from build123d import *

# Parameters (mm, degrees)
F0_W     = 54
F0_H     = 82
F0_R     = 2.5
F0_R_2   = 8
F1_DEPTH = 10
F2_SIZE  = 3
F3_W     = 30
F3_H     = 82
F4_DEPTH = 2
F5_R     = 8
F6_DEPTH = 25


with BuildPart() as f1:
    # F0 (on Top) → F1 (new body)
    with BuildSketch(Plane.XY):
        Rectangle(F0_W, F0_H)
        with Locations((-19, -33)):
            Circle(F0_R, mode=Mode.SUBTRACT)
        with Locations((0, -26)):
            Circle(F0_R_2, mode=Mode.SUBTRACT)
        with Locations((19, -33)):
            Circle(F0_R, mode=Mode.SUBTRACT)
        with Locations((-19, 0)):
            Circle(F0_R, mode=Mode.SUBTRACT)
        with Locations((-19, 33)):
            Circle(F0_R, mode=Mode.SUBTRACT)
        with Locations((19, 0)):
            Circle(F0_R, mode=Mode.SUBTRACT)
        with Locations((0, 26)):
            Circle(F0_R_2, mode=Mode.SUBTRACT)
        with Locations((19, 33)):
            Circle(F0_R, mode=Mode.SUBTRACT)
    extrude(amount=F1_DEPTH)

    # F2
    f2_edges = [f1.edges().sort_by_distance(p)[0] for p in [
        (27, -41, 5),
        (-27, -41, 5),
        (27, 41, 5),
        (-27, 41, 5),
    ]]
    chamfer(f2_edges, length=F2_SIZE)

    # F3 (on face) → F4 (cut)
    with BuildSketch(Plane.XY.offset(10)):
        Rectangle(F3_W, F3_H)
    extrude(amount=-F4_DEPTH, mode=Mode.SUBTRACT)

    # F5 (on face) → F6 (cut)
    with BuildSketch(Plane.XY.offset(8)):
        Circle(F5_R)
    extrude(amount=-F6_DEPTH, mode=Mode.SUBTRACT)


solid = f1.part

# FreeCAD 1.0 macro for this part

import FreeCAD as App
import Part
import Sketcher
from FreeCAD import Vector
Q = App.Units.Quantity


def edges_at(feature, points):
    """Names of the edges that pass closest to the given points."""
    edges = feature.Shape.Edges
    near = lambda p: min(range(len(edges)), key=lambda i: edges[i].distToShape(Part.Vertex(*p))[0])
    return sorted({f"Edge{near(p) + 1}" for p in points})

doc = App.newDocument("Part")
body = doc.addObject("PartDesign::Body", "Body")

sketch1 = body.newObject("Sketcher::SketchObject", "Sketch")
sketch1.AttachmentSupport = (doc.getObject("XY_Plane"), [""])
sketch1.MapMode = "FlatFace"
sketch1.addGeometry([
    Part.LineSegment(Vector(-27, 41, 0), Vector(-27, -41, 0)),
    Part.LineSegment(Vector(-27, -41, 0), Vector(27, -41, 0)),
    Part.LineSegment(Vector(27, -41, 0), Vector(27, 41, 0)),
    Part.LineSegment(Vector(27, 41, 0), Vector(-27, 41, 0)),
    Part.Circle(Vector(-19, -33, 0), Vector(0, 0, 1), 2.5),
    Part.Circle(Vector(0, -26, 0), Vector(0, 0, 1), 8),
    Part.Circle(Vector(19, -33, 0), Vector(0, 0, 1), 2.5),
    Part.Circle(Vector(-19, 0, 0), Vector(0, 0, 1), 2.5),
    Part.Circle(Vector(-19, 33, 0), Vector(0, 0, 1), 2.5),
    Part.Circle(Vector(19, 0, 0), Vector(0, 0, 1), 2.5),
    Part.Circle(Vector(0, 26, 0), Vector(0, 0, 1), 8),
    Part.Circle(Vector(19, 33, 0), Vector(0, 0, 1), 2.5),
], False)
sketch1.addConstraint([
    Sketcher.Constraint("Coincident", 0, 2, 1, 1),
    Sketcher.Constraint("Coincident", 1, 2, 2, 1),
    Sketcher.Constraint("Coincident", 2, 2, 3, 1),
    Sketcher.Constraint("Coincident", 3, 2, 0, 1),
    Sketcher.Constraint("Vertical", 0),
    Sketcher.Constraint("Horizontal", 1),
    Sketcher.Constraint("Vertical", 2),
    Sketcher.Constraint("Horizontal", 3),
    Sketcher.Constraint("Equal", 4, 6),
    Sketcher.Constraint("Equal", 6, 7),
    Sketcher.Constraint("Equal", 7, 8),
    Sketcher.Constraint("Equal", 8, 9),
    Sketcher.Constraint("Equal", 5, 10),
    Sketcher.Constraint("Equal", 9, 11),
    Sketcher.Constraint("Symmetric", 6, 3, 8, 3, -1, 1),
    Sketcher.Constraint("Symmetric", 7, 3, 9, 3, -1, 1),
    Sketcher.Constraint("Symmetric", 5, 3, 10, 3, -1, 1),
    Sketcher.Constraint("Symmetric", 4, 3, 11, 3, -1, 1),
    Sketcher.Constraint("Symmetric", 0, 2, 2, 2, -1, 1),
    Sketcher.Constraint("Symmetric", 4, 3, 6, 3, -2),
    Sketcher.Constraint("PointOnObject", 5, 3, -2),
    Sketcher.Constraint("PointOnObject", 7, 3, -1),
    Sketcher.Constraint("Vertical", 4, 3, 7, 3),
    Sketcher.Constraint("Diameter", 4, Q("5 mm")),
    Sketcher.Constraint("Diameter", 5, Q("16 mm")),
    Sketcher.Constraint("DistanceX", 1, 1, 1, 2, Q("54 mm")),
    Sketcher.Constraint("DistanceY", 0, 2, 0, 1, Q("82 mm")),
    Sketcher.Constraint("DistanceX", 4, 3, -1, 1, Q("19 mm")),
    Sketcher.Constraint("DistanceY", 4, 3, -1, 1, Q("33 mm")),
    Sketcher.Constraint("DistanceY", 5, 3, -1, 1, Q("26 mm")),
])
pad1 = body.newObject("PartDesign::Pad", "Pad")
pad1.Profile = sketch1
pad1.Length = 10
doc.recompute()

chamfer = body.newObject("PartDesign::Chamfer", "Chamfer")
chamfer.Base = (pad1, edges_at(pad1, [
    (27, -41, 5),
    (-27, -41, 5),
    (27, 41, 5),
    (-27, 41, 5),
]))
chamfer.Size = 3

sketch2 = body.newObject("Sketcher::SketchObject", "Sketch001")
sketch2.AttachmentSupport = (doc.getObject("XY_Plane"), [""])
sketch2.MapMode = "FlatFace"
sketch2.AttachmentOffset = App.Placement(Vector(0, 0, 10), App.Rotation())
sketch2.addGeometry([
    Part.LineSegment(Vector(-15, 41, 0), Vector(-15, -41, 0)),
    Part.LineSegment(Vector(-15, -41, 0), Vector(15, -41, 0)),
    Part.LineSegment(Vector(15, -41, 0), Vector(15, 41, 0)),
    Part.LineSegment(Vector(15, 41, 0), Vector(-15, 41, 0)),
], False)
sketch2.addConstraint([
    Sketcher.Constraint("Coincident", 0, 2, 1, 1),
    Sketcher.Constraint("Coincident", 1, 2, 2, 1),
    Sketcher.Constraint("Coincident", 2, 2, 3, 1),
    Sketcher.Constraint("Coincident", 3, 2, 0, 1),
    Sketcher.Constraint("Vertical", 0),
    Sketcher.Constraint("Horizontal", 1),
    Sketcher.Constraint("Vertical", 2),
    Sketcher.Constraint("Horizontal", 3),
    Sketcher.Constraint("Symmetric", 0, 2, 2, 2, -1, 1),
    Sketcher.Constraint("DistanceX", 1, 1, 1, 2, Q("30 mm")),
    Sketcher.Constraint("DistanceY", 0, 2, 0, 1, Q("82 mm")),
])
pocket1 = body.newObject("PartDesign::Pocket", "Pocket")
pocket1.Profile = sketch2
pocket1.Length = 2

sketch3 = body.newObject("Sketcher::SketchObject", "Sketch002")
sketch3.AttachmentSupport = (doc.getObject("XY_Plane"), [""])
sketch3.MapMode = "FlatFace"
sketch3.AttachmentOffset = App.Placement(Vector(0, 0, 8), App.Rotation())
sketch3.addGeometry(Part.Circle(Vector(0, 0, 0), Vector(0, 0, 1), 8), False)
sketch3.addConstraint([
    Sketcher.Constraint("Coincident", 0, 3, -1, 1),
    Sketcher.Constraint("Diameter", 0, Q("16 mm")),
])
pocket2 = body.newObject("PartDesign::Pocket", "Pocket001")
pocket2.Profile = sketch3
pocket2.Length = 25

doc.recompute()
